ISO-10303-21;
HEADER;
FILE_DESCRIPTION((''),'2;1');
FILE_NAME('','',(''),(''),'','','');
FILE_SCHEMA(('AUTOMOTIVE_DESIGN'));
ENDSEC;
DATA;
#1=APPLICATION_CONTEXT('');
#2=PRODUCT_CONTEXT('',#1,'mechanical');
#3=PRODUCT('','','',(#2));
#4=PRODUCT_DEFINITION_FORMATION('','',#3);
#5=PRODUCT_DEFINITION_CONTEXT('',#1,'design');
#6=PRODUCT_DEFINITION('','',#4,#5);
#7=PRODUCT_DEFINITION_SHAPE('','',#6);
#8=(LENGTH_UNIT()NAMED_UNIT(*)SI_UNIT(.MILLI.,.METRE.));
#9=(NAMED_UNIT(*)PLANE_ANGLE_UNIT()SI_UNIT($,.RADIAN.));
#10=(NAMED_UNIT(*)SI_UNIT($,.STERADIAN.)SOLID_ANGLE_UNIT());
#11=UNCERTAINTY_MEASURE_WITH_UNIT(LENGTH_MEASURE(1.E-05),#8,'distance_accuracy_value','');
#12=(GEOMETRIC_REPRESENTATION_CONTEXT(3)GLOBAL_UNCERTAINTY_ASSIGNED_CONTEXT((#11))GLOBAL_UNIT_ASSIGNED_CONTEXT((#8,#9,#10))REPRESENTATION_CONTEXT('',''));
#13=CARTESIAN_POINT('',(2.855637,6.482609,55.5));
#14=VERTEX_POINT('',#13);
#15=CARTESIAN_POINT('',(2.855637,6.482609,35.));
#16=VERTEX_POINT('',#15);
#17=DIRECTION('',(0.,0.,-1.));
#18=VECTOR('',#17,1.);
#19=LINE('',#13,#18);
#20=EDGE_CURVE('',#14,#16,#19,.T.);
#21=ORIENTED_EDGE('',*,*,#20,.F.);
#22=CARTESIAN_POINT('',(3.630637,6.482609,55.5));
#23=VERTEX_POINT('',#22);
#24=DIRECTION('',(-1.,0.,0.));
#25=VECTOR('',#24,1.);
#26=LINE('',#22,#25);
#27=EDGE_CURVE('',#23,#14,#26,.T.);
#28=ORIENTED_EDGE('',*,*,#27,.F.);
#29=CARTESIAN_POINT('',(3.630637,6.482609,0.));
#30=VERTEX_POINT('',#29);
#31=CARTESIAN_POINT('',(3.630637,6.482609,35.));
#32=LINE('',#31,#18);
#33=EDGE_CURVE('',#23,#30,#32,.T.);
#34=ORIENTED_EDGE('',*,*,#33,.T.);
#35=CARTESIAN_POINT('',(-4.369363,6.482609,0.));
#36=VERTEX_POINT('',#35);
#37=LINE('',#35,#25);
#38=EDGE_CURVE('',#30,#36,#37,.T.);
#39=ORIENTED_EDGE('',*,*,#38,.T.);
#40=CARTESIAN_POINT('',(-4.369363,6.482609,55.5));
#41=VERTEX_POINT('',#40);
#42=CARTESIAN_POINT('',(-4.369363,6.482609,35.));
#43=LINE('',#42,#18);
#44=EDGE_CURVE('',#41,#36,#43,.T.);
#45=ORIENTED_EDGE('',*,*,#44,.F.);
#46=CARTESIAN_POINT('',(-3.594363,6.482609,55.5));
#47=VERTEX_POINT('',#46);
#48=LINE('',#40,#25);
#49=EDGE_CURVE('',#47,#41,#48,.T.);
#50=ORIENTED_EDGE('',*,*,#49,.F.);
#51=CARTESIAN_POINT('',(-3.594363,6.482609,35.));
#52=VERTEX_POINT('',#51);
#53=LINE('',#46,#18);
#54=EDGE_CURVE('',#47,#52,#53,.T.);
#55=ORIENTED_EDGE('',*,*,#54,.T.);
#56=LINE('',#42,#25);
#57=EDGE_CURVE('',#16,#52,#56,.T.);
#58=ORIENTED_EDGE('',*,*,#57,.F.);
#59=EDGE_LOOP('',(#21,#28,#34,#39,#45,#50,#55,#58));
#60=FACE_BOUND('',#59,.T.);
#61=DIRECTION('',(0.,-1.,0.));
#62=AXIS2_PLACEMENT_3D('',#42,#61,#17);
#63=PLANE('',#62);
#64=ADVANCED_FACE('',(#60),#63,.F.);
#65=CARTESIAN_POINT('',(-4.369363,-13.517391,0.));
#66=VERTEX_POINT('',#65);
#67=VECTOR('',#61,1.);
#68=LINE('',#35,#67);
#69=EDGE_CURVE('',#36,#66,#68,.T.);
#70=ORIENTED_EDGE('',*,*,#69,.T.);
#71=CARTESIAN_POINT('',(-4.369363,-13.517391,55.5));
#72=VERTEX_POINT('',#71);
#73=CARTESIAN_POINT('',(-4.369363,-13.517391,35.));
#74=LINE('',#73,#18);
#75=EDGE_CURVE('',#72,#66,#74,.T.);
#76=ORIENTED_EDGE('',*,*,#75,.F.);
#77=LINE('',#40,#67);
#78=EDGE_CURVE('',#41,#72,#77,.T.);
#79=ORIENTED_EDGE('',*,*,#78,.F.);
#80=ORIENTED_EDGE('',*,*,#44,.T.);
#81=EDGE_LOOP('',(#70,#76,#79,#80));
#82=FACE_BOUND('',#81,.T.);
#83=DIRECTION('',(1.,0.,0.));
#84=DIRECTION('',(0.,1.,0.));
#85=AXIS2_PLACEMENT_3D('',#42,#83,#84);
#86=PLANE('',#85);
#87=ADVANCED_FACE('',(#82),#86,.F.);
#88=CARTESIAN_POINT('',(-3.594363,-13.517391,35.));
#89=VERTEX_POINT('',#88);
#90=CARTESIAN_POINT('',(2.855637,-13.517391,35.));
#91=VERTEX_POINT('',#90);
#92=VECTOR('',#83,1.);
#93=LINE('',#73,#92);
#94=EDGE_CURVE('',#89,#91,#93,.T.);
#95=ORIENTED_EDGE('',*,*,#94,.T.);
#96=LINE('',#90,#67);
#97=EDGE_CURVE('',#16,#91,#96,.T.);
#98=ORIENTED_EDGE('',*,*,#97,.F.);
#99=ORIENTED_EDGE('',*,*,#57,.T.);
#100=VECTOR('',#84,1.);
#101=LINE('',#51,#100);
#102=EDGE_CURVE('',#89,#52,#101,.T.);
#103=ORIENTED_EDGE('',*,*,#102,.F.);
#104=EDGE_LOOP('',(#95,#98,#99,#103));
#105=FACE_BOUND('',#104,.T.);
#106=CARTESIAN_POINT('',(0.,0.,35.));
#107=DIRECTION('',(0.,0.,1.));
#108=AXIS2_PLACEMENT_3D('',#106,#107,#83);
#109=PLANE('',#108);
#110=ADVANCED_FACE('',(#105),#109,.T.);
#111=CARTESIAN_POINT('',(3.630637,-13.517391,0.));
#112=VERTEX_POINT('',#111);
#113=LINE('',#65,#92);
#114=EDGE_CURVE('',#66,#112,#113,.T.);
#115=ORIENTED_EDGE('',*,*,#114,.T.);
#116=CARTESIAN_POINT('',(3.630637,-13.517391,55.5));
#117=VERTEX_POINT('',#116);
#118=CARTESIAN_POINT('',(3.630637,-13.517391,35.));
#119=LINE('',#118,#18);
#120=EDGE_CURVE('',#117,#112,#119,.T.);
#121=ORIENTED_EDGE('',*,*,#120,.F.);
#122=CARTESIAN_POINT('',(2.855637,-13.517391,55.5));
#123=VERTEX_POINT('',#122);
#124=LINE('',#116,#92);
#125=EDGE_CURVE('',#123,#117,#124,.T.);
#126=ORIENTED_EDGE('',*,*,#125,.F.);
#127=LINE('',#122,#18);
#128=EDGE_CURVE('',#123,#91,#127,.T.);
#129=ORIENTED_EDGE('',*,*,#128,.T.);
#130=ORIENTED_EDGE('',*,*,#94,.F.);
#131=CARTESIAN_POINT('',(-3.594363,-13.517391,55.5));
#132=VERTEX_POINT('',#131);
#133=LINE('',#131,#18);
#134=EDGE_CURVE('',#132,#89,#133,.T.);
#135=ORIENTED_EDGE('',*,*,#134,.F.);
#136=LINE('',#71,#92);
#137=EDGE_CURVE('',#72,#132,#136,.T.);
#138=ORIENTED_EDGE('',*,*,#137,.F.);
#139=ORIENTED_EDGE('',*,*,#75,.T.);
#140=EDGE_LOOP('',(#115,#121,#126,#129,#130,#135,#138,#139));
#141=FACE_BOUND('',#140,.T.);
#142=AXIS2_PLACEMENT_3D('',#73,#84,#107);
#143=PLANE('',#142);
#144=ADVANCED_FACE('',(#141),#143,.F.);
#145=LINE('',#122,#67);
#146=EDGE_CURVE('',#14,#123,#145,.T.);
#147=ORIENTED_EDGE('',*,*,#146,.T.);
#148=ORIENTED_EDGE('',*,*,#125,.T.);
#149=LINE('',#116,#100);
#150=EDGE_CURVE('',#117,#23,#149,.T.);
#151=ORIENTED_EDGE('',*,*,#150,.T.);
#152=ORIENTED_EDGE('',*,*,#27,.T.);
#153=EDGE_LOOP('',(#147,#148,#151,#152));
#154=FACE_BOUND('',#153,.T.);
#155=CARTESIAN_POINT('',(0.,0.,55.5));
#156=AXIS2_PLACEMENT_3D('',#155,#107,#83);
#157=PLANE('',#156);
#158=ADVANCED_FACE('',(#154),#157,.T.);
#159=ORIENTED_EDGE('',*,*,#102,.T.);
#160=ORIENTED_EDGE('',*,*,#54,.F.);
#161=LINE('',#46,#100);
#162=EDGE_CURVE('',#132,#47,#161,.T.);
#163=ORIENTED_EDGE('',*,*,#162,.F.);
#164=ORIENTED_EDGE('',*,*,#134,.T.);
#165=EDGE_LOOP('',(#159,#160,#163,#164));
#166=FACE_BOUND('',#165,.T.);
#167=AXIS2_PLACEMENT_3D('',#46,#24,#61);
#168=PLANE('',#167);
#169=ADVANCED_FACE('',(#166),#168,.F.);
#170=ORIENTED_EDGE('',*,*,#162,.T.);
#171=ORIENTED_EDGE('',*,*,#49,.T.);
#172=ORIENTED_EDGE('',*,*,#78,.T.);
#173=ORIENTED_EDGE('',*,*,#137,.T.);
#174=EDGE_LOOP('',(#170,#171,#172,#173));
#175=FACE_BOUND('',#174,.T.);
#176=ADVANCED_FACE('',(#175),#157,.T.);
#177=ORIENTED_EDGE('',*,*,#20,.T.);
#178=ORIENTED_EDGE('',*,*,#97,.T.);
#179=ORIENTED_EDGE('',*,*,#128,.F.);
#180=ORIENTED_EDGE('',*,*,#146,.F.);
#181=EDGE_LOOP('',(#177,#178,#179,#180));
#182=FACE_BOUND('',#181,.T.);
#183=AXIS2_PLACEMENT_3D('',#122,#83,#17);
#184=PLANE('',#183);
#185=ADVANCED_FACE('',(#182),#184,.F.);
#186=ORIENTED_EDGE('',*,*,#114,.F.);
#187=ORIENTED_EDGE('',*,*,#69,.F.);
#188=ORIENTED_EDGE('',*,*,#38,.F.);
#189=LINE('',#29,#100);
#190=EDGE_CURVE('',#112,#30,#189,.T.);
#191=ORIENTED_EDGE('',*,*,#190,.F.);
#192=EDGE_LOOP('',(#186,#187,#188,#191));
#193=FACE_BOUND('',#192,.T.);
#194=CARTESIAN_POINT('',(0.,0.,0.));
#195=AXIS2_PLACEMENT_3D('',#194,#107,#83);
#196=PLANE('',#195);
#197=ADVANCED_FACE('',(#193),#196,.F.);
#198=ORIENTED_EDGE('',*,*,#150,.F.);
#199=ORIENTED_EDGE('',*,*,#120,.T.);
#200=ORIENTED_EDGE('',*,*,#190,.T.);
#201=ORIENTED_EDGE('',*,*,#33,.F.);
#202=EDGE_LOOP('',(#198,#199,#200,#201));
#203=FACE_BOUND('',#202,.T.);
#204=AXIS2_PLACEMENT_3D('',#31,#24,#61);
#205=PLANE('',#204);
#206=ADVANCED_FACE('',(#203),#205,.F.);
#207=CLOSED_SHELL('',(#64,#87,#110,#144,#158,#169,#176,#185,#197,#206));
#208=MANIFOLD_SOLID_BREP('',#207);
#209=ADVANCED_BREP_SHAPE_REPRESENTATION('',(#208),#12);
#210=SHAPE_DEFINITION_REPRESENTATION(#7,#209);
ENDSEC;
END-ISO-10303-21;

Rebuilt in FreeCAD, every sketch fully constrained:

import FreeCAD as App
import Part
import Sketcher
from FreeCAD import Vector
Q = App.Units.Quantity


def add_polygon(sketch, points):
    """Adds a closed chain of lines whose ends are joined by coincident constraints."""
    first, n = sketch.GeometryCount, len(points)
    for a, b in zip(points, points[1:] + points[:1]):
        sketch.addGeometry(Part.LineSegment(App.Vector(*a, 0), App.Vector(*b, 0)), False)
    for i in range(n):
        sketch.addConstraint(Sketcher.Constraint("Coincident", first + i, 2, first + (i + 1) % n, 1))

doc = App.newDocument("Part")
params = doc.addObject("Spreadsheet::Sheet", "Params")
for row, (alias, value) in enumerate([
    ("sketch1_width", "8 mm"),
    ("sketch1_height", "20 mm"),
    ("pad1_length", "35 mm"),
    ("sketch2_height", "20 mm"),
    ("pad2_length", "20.5 mm"),
], start=1):
    params.set(f"A{row}", alias)
    params.set(f"B{row}", "=" + value)
    params.setAlias(f"B{row}", alias)

body = doc.addObject("PartDesign::Body", "Body")

# Sketch on XY plane
sketch1 = body.newObject("Sketcher::SketchObject", "Sketch")
sketch1.AttachmentSupport = (doc.getObject("XY_Plane"), [""])
sketch1.MapMode = "FlatFace"
add_polygon(sketch1, [(-4, 6), (-4, -14), (4, -14), (4, 6)])  # lines 0-3
sketch1.addConstraint([
    Sketcher.Constraint("Vertical", 0),
    Sketcher.Constraint("Horizontal", 1),
    Sketcher.Constraint("Vertical", 2),
    Sketcher.Constraint("Horizontal", 3),
    Sketcher.Constraint("DistanceX", 1, 1, 1, 2, Q("8 mm")),
    Sketcher.Constraint("DistanceY", 0, 2, 0, 1, Q("20 mm")),
    Sketcher.Constraint("DistanceY", 0, 2, -1, 1, Q("13.517391 mm")),
    Sketcher.Constraint("DistanceX", 0, 2, -1, 1, Q("4.369363 mm")),
])
sketch1.setExpression("Constraints[8]", "Params.sketch1_width")
sketch1.setExpression("Constraints[9]", "Params.sketch1_height")
pad1 = body.newObject("PartDesign::Pad", "Pad")
pad1.Profile = sketch1
pad1.setExpression("Length", "Params.pad1_length")

# Sketch on XY plane
sketch2 = body.newObject("Sketcher::SketchObject", "Sketch001")
sketch2.AttachmentSupport = (doc.getObject("XY_Plane"), [""])
sketch2.MapMode = "FlatFace"
sketch2.AttachmentOffset = App.Placement(Vector(0, 0, 35), App.Rotation())
add_polygon(sketch2, [(-4.4, 6.5), (-4.4, -13.5), (-3.6, -13.5), (-3.6, 6.5)])  # lines 0-3
add_polygon(sketch2, [(2.9, 6.5), (2.9, -13.5), (3.6, -13.5), (3.6, 6.5)])  # lines 4-7
sketch2.addConstraint([
    Sketcher.Constraint("Vertical", 0),
    Sketcher.Constraint("Horizontal", 1),
    Sketcher.Constraint("Vertical", 2),
    Sketcher.Constraint("Horizontal", 3),
    Sketcher.Constraint("Vertical", 4),
    Sketcher.Constraint("Horizontal", 5),
    Sketcher.Constraint("Vertical", 6),
    Sketcher.Constraint("Horizontal", 7),
    Sketcher.Constraint("Horizontal", 1, 2, 4, 2),
    Sketcher.Constraint("Horizontal", 3, 2, 6, 2),
    Sketcher.Constraint("Equal", 3, 5),
    Sketcher.Constraint("DistanceY", 0, 2, 0, 1, Q("20 mm")),
    Sketcher.Constraint("DistanceX", 0, 2, 5, 2, Q("8 mm")),
    Sketcher.Constraint("DistanceX", 1, 1, 1, 2, Q("0.775 mm")),
    Sketcher.Constraint("DistanceY", 0, 2, -1, 1, Q("13.517391 mm")),
    Sketcher.Constraint("DistanceX", 0, 2, -1, 1, Q("4.369363 mm")),
])
sketch2.setExpression("Constraints[19]", "Params.sketch2_height")
pad2 = body.newObject("PartDesign::Pad", "Pad001")
pad2.Profile = sketch2
pad2.setExpression("Length", "Params.pad2_length")

doc.recompute()
